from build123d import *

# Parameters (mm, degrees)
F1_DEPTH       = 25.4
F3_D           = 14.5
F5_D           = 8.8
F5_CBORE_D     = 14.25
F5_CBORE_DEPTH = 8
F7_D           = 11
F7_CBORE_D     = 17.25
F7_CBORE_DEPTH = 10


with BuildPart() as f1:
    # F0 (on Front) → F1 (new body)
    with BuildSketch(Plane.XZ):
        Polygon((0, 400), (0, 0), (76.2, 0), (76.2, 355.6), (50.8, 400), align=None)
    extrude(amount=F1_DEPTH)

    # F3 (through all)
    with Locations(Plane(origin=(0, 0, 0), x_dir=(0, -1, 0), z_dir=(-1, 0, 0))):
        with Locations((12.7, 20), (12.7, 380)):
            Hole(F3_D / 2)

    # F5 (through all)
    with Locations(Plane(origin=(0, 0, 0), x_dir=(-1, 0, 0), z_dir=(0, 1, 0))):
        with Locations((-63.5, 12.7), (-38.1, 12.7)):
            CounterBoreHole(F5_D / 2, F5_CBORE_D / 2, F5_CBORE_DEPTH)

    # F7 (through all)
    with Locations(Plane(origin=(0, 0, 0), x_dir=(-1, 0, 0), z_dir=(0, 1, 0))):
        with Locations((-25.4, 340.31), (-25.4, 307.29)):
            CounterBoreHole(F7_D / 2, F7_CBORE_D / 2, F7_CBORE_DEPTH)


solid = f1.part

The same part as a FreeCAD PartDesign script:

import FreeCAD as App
import Part
import Sketcher

V = App.Vector
Q = App.Units.Quantity


def add_polygon(sketch, points):
    """Adds a closed chain of lines whose ends are joined by coincident constraints."""
    first, n = sketch.GeometryCount, len(points)
    for a, b in zip(points, points[1:] + points[:1]):
        sketch.addGeometry(Part.LineSegment(App.Vector(*a, 0), App.Vector(*b, 0)), False)
    for i in range(n):
        sketch.addConstraint(Sketcher.Constraint("Coincident", first + i, 2, first + (i + 1) % n, 1))

doc = App.newDocument("Part")
params = doc.addObject("Spreadsheet::Sheet", "Params")
for row, (alias, value) in enumerate([
    ("sketch1_height", "400 mm"),
    ("sketch1_width", "76.2 mm"),
    ("sketch1_width2", "50.8 mm"),
    ("sketch1_height2", "355.6 mm"),
    ("pad1_length", "25.4 mm"),
    ("sketch2_diameter", "14.5 mm"),
    ("hole_diameter", "14.5 mm"),
    ("sketch3_diameter", "8.8 mm"),
    ("hole2_diameter", "8.8 mm"),
    ("hole2_cbore_diameter", "14.25 mm"),
    ("hole2_cbore_depth", "8 mm"),
    ("sketch4_diameter", "11 mm"),
    ("hole3_diameter", "11 mm"),
    ("hole3_cbore_diameter", "17.25 mm"),
    ("hole3_cbore_depth", "10 mm"),
], start=1):
    params.set(f"A{row}", alias)
    params.set(f"B{row}", "=" + value)
    params.setAlias(f"B{row}", alias)

body = doc.addObject("PartDesign::Body", "Body")

# Sketch on XZ plane
sketch1 = doc.addObject("Sketcher::SketchObject", "Sketch")
body.addObject(sketch1)
sketch1.AttachmentSupport = (doc.XZ_Plane, [""])
sketch1.MapMode = "FlatFace"
add_polygon(sketch1, [(0, 400), (0, 0), (76, 0), (76, 356), (51, 400)])  # lines 0-4
sketch1.addConstraint([
    Sketcher.Constraint("Vertical", 0),
    Sketcher.Constraint("Horizontal", 1),
    Sketcher.Constraint("Vertical", 2),
    Sketcher.Constraint("Horizontal", 4),
    Sketcher.Constraint("Coincident", 0, 2, -1, 1),
    Sketcher.Constraint("DistanceY", 0, 2, 0, 1, Q("400 mm")),
    Sketcher.Constraint("DistanceX", 1, 1, 1, 2, Q("76.2 mm")),
    Sketcher.Constraint("DistanceX", 4, 2, 4, 1, Q("50.8 mm")),
    Sketcher.Constraint("DistanceY", 2, 1, 2, 2, Q("355.6 mm")),
])
sketch1.setExpression("Constraints[10]", "Params.sketch1_height")
sketch1.setExpression("Constraints[11]", "Params.sketch1_width")
sketch1.setExpression("Constraints[12]", "Params.sketch1_width2")
sketch1.setExpression("Constraints[13]", "Params.sketch1_height2")
pad1 = doc.addObject("PartDesign::Pad", "Pad")
body.addObject(pad1)
pad1.Profile = sketch1
pad1.setExpression("Length", "Params.pad1_length")

# Sketch on YZ plane
sketch2 = doc.addObject("Sketcher::SketchObject", "Sketch001")
body.addObject(sketch2)
sketch2.AttachmentSupport = (doc.YZ_Plane, [""])
sketch2.MapMode = "FlatFace"
sketch2.addGeometry([
    Part.Circle(V(-13, 20, 0), V(0, 0, 1), 7),
    Part.Circle(V(-13, 380, 0), V(0, 0, 1), 7),
], False)
sketch2.addConstraint([
    Sketcher.Constraint("Equal", 0, 1),
    Sketcher.Constraint("Vertical", 0, 3, 1, 3),
    Sketcher.Constraint("Diameter", 0, Q("14.5 mm")),
    Sketcher.Constraint("DistanceY", -1, 1, 0, 3, Q("20 mm")),
    Sketcher.Constraint("DistanceY", -1, 1, 1, 3, Q("380 mm")),
    Sketcher.Constraint("DistanceX", 0, 3, -1, 1, Q("12.7 mm")),
])
sketch2.setExpression("Constraints[2]", "Params.sketch2_diameter")
doc.recompute()
hole = doc.addObject("PartDesign::Hole", "Hole")
body.addObject(hole)
hole.Profile = sketch2
hole.ThreadType = "None"
hole.setExpression("Diameter", "Params.hole_diameter")
hole.DepthType = "ThroughAll"
hole.Reversed = True

# Sketch on XZ plane
sketch3 = doc.addObject("Sketcher::SketchObject", "Sketch002")
body.addObject(sketch3)
sketch3.AttachmentSupport = (doc.XZ_Plane, [""])
sketch3.MapMode = "FlatFace"
sketch3.addGeometry([
    Part.Circle(V(63.5, 12.7, 0), V(0, 0, 1), 4.4),
    Part.Circle(V(38.1, 12.7, 0), V(0, 0, 1), 4.4),
], False)
sketch3.addConstraint([
    Sketcher.Constraint("Equal", 0, 1),
    Sketcher.Constraint("Horizontal", 0, 3, 1, 3),
    Sketcher.Constraint("Diameter", 0, Q("8.8 mm")),
    Sketcher.Constraint("DistanceX", -1, 1, 0, 3, Q("63.5 mm")),
    Sketcher.Constraint("DistanceY", -1, 1, 0, 3, Q("12.7 mm")),
    Sketcher.Constraint("DistanceX", -1, 1, 1, 3, Q("38.1 mm")),
])
sketch3.setExpression("Constraints[2]", "Params.sketch3_diameter")
doc.recompute()
hole2 = doc.addObject("PartDesign::Hole", "Hole001")
body.addObject(hole2)
hole2.Profile = sketch3
hole2.ThreadType = "None"
hole2.setExpression("Diameter", "Params.hole2_diameter")
hole2.DepthType = "ThroughAll"
hole2.HoleCutType = "Counterbore"
hole2.setExpression("HoleCutDiameter", "Params.hole2_cbore_diameter")
hole2.setExpression("HoleCutDepth", "Params.hole2_cbore_depth")
hole2.Reversed = True

# Sketch on XZ plane
sketch4 = doc.addObject("Sketcher::SketchObject", "Sketch003")
body.addObject(sketch4)
sketch4.AttachmentSupport = (doc.XZ_Plane, [""])
sketch4.MapMode = "FlatFace"
sketch4.addGeometry([
    Part.Circle(V(25, 340, 0), V(0, 0, 1), 6),
    Part.Circle(V(25, 307, 0), V(0, 0, 1), 6),
], False)
sketch4.addConstraint([
    Sketcher.Constraint("Equal", 0, 1),
    Sketcher.Constraint("Vertical", 0, 3, 1, 3),
    Sketcher.Constraint("Diameter", 0, Q("11 mm")),
    Sketcher.Constraint("DistanceX", -1, 1, 0, 3, Q("25.4 mm")),
    Sketcher.Constraint("DistanceY", -1, 1, 0, 3, Q("340.31 mm")),
    Sketcher.Constraint("DistanceY", -1, 1, 1, 3, Q("307.29 mm")),
])
sketch4.setExpression("Constraints[2]", "Params.sketch4_diameter")
doc.recompute()
hole3 = doc.addObject("PartDesign::Hole", "Hole002")
body.addObject(hole3)
hole3.Profile = sketch4
hole3.ThreadType = "None"
hole3.setExpression("Diameter", "Params.hole3_diameter")
hole3.DepthType = "ThroughAll"
hole3.HoleCutType = "Counterbore"
hole3.setExpression("HoleCutDiameter", "Params.hole3_cbore_diameter")
hole3.setExpression("HoleCutDepth", "Params.hole3_cbore_depth")
hole3.Reversed = True

doc.recompute()
